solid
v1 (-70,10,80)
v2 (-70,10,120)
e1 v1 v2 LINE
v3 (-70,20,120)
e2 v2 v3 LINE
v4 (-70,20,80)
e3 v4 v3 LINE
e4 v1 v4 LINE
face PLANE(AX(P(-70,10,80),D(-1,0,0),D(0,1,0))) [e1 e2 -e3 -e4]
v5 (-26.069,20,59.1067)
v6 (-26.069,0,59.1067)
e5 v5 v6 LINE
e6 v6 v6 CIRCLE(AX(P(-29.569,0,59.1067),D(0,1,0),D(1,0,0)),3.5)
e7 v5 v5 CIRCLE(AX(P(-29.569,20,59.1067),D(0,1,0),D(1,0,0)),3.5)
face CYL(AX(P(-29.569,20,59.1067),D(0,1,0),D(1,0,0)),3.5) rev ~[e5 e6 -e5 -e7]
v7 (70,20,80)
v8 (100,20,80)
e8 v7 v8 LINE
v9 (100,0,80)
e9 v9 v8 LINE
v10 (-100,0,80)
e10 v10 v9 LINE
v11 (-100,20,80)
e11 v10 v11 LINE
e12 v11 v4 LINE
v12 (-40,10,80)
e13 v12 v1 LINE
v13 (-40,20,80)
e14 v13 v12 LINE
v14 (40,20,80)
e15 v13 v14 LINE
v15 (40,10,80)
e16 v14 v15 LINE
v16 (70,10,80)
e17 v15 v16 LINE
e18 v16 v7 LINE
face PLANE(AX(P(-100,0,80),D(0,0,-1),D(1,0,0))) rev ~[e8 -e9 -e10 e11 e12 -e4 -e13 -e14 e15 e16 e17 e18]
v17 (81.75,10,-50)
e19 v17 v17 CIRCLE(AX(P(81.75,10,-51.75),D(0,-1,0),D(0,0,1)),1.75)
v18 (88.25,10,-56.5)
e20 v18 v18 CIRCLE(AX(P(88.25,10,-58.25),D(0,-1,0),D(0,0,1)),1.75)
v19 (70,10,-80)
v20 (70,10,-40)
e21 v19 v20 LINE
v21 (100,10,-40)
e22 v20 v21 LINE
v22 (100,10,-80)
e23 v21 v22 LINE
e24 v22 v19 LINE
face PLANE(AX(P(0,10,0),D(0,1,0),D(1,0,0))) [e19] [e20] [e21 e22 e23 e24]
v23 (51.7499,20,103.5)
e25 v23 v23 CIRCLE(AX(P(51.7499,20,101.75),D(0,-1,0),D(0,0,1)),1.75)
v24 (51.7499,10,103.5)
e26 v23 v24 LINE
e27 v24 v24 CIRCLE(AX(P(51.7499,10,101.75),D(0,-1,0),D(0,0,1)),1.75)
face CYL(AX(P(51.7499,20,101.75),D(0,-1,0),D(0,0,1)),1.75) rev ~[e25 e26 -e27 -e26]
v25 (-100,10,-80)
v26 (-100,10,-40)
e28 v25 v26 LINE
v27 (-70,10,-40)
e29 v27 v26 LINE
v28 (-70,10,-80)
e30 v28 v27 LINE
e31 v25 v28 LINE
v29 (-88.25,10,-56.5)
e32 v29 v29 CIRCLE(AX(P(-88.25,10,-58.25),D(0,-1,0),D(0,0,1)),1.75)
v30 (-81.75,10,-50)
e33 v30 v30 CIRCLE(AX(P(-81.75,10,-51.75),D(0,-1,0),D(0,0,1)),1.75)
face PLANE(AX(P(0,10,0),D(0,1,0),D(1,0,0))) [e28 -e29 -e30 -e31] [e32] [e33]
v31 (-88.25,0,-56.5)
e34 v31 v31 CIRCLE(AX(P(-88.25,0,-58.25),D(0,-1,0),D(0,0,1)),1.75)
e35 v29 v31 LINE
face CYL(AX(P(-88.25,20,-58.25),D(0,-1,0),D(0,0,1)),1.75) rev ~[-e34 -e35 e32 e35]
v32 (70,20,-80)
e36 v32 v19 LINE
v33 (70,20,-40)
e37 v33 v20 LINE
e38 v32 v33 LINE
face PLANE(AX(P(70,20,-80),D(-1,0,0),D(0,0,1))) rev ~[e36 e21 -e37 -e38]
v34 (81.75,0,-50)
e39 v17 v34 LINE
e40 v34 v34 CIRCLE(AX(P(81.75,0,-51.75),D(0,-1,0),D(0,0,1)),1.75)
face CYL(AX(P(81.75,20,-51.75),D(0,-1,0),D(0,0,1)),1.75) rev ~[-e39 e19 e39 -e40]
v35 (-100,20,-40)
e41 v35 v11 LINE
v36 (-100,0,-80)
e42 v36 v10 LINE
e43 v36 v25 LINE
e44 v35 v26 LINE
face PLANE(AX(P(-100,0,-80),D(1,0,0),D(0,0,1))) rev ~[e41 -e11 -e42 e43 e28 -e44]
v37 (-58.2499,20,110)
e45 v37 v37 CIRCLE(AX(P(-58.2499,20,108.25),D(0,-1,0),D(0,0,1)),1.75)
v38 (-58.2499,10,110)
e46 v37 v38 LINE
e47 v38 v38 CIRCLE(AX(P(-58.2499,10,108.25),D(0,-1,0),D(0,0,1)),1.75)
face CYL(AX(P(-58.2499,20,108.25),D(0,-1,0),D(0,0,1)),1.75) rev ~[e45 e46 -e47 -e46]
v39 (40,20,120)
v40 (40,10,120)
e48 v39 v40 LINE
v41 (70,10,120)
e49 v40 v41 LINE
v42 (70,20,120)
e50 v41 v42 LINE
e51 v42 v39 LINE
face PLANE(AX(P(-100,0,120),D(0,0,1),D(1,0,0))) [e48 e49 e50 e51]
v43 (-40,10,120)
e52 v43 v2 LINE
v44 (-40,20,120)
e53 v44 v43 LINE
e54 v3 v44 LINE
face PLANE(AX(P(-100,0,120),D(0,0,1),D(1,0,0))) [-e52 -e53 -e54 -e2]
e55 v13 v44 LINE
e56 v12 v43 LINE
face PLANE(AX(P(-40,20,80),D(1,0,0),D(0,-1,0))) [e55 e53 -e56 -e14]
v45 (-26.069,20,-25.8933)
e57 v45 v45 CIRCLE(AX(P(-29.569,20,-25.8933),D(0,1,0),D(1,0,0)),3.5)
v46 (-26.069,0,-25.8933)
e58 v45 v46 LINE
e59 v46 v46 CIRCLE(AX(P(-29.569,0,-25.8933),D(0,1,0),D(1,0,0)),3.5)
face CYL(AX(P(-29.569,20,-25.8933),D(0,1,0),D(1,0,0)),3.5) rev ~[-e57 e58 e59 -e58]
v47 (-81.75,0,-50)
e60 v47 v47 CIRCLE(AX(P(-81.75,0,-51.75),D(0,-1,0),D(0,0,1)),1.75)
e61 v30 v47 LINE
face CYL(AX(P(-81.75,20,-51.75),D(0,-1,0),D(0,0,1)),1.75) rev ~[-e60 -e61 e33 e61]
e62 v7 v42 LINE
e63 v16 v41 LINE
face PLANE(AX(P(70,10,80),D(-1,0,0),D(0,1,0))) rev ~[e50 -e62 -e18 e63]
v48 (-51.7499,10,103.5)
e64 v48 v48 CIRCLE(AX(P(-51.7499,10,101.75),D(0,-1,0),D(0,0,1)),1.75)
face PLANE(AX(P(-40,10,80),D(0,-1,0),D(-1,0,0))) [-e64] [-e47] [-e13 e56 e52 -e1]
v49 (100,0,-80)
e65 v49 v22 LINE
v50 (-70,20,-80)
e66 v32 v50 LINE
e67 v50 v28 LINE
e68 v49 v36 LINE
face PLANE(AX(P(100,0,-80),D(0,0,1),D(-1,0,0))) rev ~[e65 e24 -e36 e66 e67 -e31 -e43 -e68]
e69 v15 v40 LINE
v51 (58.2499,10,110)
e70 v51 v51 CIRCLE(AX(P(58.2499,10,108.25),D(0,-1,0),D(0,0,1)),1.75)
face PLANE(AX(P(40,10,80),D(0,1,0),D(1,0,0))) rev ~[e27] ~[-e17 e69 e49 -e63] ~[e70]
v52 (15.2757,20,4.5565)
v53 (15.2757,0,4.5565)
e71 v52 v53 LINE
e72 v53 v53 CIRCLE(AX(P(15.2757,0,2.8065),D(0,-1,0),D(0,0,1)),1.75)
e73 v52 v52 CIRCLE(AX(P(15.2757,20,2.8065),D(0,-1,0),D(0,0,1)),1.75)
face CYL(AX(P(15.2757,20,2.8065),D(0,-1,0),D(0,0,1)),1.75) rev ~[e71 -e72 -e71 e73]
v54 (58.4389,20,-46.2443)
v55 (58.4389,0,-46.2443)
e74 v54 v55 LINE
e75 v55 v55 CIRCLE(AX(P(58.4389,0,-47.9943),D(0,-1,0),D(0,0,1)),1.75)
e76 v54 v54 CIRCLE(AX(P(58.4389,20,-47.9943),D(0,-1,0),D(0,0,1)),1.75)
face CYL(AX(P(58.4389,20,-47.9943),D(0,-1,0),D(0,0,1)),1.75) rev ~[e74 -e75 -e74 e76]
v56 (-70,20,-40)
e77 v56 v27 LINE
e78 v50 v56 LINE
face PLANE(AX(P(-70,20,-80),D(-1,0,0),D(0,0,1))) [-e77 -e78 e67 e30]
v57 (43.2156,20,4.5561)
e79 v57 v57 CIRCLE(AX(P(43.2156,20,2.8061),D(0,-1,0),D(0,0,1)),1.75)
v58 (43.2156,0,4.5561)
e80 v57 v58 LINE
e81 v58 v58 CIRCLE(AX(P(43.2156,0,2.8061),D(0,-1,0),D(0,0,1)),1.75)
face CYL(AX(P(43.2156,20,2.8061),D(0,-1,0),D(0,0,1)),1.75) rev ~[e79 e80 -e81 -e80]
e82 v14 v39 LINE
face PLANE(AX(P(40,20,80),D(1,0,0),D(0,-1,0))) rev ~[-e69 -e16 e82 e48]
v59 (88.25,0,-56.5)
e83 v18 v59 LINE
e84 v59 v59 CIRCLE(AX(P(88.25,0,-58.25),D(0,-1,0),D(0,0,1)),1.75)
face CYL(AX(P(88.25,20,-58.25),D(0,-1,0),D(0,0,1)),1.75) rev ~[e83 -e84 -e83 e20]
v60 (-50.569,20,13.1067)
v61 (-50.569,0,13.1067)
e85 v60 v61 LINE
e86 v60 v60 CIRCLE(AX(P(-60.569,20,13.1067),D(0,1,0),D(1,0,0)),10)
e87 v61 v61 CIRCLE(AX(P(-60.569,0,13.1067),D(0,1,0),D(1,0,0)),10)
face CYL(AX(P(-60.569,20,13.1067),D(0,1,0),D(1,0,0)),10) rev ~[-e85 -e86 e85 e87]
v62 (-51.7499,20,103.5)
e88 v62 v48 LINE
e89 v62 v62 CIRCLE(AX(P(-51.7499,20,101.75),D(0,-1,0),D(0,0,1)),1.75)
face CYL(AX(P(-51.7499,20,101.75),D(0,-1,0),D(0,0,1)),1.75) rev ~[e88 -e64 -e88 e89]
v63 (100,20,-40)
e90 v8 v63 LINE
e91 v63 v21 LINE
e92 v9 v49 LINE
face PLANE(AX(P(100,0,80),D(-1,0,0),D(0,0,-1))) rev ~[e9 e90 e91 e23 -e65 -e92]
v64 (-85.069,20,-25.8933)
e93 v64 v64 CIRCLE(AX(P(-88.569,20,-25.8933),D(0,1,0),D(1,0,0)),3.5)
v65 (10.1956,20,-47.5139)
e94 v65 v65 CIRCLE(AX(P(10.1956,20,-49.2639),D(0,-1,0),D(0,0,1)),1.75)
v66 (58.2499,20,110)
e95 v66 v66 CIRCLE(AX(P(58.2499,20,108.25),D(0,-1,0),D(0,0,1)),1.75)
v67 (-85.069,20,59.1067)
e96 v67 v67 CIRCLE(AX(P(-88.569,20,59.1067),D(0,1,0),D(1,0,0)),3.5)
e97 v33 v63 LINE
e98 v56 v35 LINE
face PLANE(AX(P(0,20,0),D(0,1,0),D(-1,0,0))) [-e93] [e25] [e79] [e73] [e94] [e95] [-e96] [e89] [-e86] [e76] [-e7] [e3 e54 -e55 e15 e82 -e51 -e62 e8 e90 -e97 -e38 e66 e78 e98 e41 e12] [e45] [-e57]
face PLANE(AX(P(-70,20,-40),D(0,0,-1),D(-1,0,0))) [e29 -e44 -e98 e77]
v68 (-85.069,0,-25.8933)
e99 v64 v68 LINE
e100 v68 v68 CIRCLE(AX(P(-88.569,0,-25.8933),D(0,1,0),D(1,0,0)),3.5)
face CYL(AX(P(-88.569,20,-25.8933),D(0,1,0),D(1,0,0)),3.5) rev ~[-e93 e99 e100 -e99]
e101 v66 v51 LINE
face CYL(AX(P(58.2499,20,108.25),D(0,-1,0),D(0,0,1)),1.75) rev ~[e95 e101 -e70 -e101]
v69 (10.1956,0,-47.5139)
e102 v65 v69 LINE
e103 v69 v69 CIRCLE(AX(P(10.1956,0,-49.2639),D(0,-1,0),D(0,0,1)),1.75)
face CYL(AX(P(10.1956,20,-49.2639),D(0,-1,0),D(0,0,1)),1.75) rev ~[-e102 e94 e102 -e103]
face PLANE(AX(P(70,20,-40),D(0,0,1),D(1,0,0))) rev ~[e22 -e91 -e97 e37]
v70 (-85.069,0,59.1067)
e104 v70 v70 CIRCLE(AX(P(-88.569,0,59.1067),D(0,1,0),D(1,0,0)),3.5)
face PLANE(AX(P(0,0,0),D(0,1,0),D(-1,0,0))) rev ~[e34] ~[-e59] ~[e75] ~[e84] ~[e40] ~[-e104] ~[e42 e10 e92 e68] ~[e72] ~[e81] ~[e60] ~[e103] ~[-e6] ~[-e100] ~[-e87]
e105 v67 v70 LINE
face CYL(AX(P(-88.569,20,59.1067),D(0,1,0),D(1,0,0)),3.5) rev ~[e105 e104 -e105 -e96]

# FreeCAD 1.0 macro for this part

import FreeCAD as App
import Part
import Sketcher

V = App.Vector
Q = App.Units.Quantity

doc = App.newDocument("Part")
body = doc.addObject("PartDesign::Body", "Body")

sketch1 = doc.addObject("Sketcher::SketchObject", "Sketch")
body.addObject(sketch1)
sketch1.AttachmentSupport = (doc.XZ_Plane, [""])
sketch1.MapMode = "FlatFace"
sketch1.addGeometry(Part.LineSegment(V(-100, -80, 0), V(-100, 80, 0)), False)
sketch1.addGeometry(Part.LineSegment(V(-100, 80, 0), V(100, 80, 0)), False)
sketch1.addGeometry(Part.LineSegment(V(100, 80, 0), V(100, -80, 0)), False)
sketch1.addGeometry(Part.LineSegment(V(100, -80, 0), V(-100, -80, 0)), False)
sketch1.addConstraint(Sketcher.Constraint("Coincident", 0, 2, 1, 1))
sketch1.addConstraint(Sketcher.Constraint("Coincident", 1, 2, 2, 1))
sketch1.addConstraint(Sketcher.Constraint("Coincident", 2, 2, 3, 1))
sketch1.addConstraint(Sketcher.Constraint("Coincident", 3, 2, 0, 1))
sketch1.addConstraint(Sketcher.Constraint("Vertical", 0))
sketch1.addConstraint(Sketcher.Constraint("Horizontal", 1))
sketch1.addConstraint(Sketcher.Constraint("Vertical", 2))
sketch1.addConstraint(Sketcher.Constraint("Horizontal", 3))
sketch1.addConstraint(Sketcher.Constraint("Symmetric", 0, 2, 2, 2, -1, 1))
sketch1.addConstraint(Sketcher.Constraint("DistanceX", 1, 1, 1, 2, Q("200 mm")))
sketch1.addConstraint(Sketcher.Constraint("DistanceY", 0, 1, 0, 2, Q("160 mm")))
pad1 = doc.addObject("PartDesign::Pad", "Pad")
body.addObject(pad1)
pad1.Profile = sketch1
pad1.Length = 20
pad1.Reversed = True

sketch2 = doc.addObject("Sketcher::SketchObject", "Sketch001")
body.addObject(sketch2)
sketch2.AttachmentSupport = (doc.XZ_Plane, [""])
sketch2.MapMode = "FlatFace"
sketch2.AttachmentOffset = App.Placement(V(0, 0, -20), App.Rotation())
sketch2.addGeometry(Part.LineSegment(V(-70, -80, 0), V(-100, -80, 0)), False)
sketch2.addGeometry(Part.LineSegment(V(-100, -80, 0), V(-100, -40, 0)), False)
sketch2.addGeometry(Part.LineSegment(V(-100, -40, 0), V(-70, -40, 0)), False)
sketch2.addGeometry(Part.LineSegment(V(-70, -40, 0), V(-70, -80, 0)), False)
sketch2.addGeometry(Part.LineSegment(V(100, -80, 0), V(70, -80, 0)), False)
sketch2.addGeometry(Part.LineSegment(V(70, -80, 0), V(70, -40, 0)), False)
sketch2.addGeometry(Part.LineSegment(V(70, -40, 0), V(100, -40, 0)), False)
sketch2.addGeometry(Part.LineSegment(V(100, -40, 0), V(100, -80, 0)), False)
sketch2.addConstraint(Sketcher.Constraint("Coincident", 0, 2, 1, 1))
sketch2.addConstraint(Sketcher.Constraint("Coincident", 1, 2, 2, 1))
sketch2.addConstraint(Sketcher.Constraint("Coincident", 2, 2, 3, 1))
sketch2.addConstraint(Sketcher.Constraint("Coincident", 3, 2, 0, 1))
sketch2.addConstraint(Sketcher.Constraint("Coincident", 4, 2, 5, 1))
sketch2.addConstraint(Sketcher.Constraint("Coincident", 5, 2, 6, 1))
sketch2.addConstraint(Sketcher.Constraint("Coincident", 6, 2, 7, 1))
sketch2.addConstraint(Sketcher.Constraint("Coincident", 7, 2, 4, 1))
sketch2.addConstraint(Sketcher.Constraint("Horizontal", 0))
sketch2.addConstraint(Sketcher.Constraint("Vertical", 1))
sketch2.addConstraint(Sketcher.Constraint("Horizontal", 2))
sketch2.addConstraint(Sketcher.Constraint("Vertical", 3))
sketch2.addConstraint(Sketcher.Constraint("Horizontal", 4))
sketch2.addConstraint(Sketcher.Constraint("Vertical", 5))
sketch2.addConstraint(Sketcher.Constraint("Horizontal", 6))
sketch2.addConstraint(Sketcher.Constraint("Vertical", 7))
sketch2.addConstraint(Sketcher.Constraint("Symmetric", 3, 2, 4, 2, -2))
sketch2.addConstraint(Sketcher.Constraint("Symmetric", 1, 2, 6, 2, -2))
sketch2.addConstraint(Sketcher.Constraint("DistanceX", 0, 2, 0, 1, Q("30 mm")))
sketch2.addConstraint(Sketcher.Constraint("DistanceY", 1, 1, 1, 2, Q("40 mm")))
sketch2.addConstraint(Sketcher.Constraint("DistanceY", 1, 2, -1, 1, Q("40 mm")))
sketch2.addConstraint(Sketcher.Constraint("DistanceX", 0, 2, -1, 1, Q("100 mm")))
pocket1 = doc.addObject("PartDesign::Pocket", "Pocket")
body.addObject(pocket1)
pocket1.Profile = sketch2
pocket1.Length = 10
pocket1.Reversed = True

sketch3 = doc.addObject("Sketcher::SketchObject", "Sketch002")
body.addObject(sketch3)
sketch3.AttachmentSupport = (doc.XZ_Plane, [""])
sketch3.MapMode = "FlatFace"
sketch3.AttachmentOffset = App.Placement(V(0, 0, -20), App.Rotation())
sketch3.addGeometry(Part.Circle(V(-81.8, -51.8, 0), V(0, 0, 1), 1.8), False)
sketch3.addGeometry(Part.Circle(V(-88.2, -58.2, 0), V(0, 0, 1), 1.8), False)
sketch3.addGeometry(Part.Circle(V(81.8, -51.8, 0), V(0, 0, 1), 1.8), False)
sketch3.addGeometry(Part.Circle(V(88.2, -58.2, 0), V(0, 0, 1), 1.8), False)
sketch3.addConstraint(Sketcher.Constraint("Equal", 0, 1))
sketch3.addConstraint(Sketcher.Constraint("Equal", 1, 2))
sketch3.addConstraint(Sketcher.Constraint("Equal", 2, 3))
sketch3.addConstraint(Sketcher.Constraint("Symmetric", 0, 3, 2, 3, -2))
sketch3.addConstraint(Sketcher.Constraint("Symmetric", 1, 3, 3, 3, -2))
sketch3.addConstraint(Sketcher.Constraint("Diameter", 0, Q("3.5 mm")))
sketch3.addConstraint(Sketcher.Constraint("DistanceX", 1, 3, 2, 3, Q("170 mm")))
sketch3.addConstraint(Sketcher.Constraint("DistanceX", 1, 3, 0, 3, Q("6.5 mm")))
sketch3.addConstraint(Sketcher.Constraint("DistanceY", 1, 3, 0, 3, Q("6.5 mm")))
sketch3.addConstraint(Sketcher.Constraint("DistanceY", 0, 3, -1, 1, Q("51.75 mm")))
doc.recompute()
hole = doc.addObject("PartDesign::Hole", "Hole")
body.addObject(hole)
hole.Profile = sketch3
hole.ThreadType = "None"
hole.Diameter = 3.5
hole.DepthType = "ThroughAll"
hole.Reversed = True

sketch4 = doc.addObject("Sketcher::SketchObject", "Sketch003")
body.addObject(sketch4)
sketch4.AttachmentSupport = (doc.XY_Plane, [""])
sketch4.MapMode = "FlatFace"
sketch4.AttachmentOffset = App.Placement(V(0, 0, 80), App.Rotation())
sketch4.addGeometry(Part.LineSegment(V(-40, 20, 0), V(-70, 20, 0)), False)
sketch4.addGeometry(Part.LineSegment(V(-70, 20, 0), V(-70, 10, 0)), False)
sketch4.addGeometry(Part.LineSegment(V(-70, 10, 0), V(-40, 10, 0)), False)
sketch4.addGeometry(Part.LineSegment(V(-40, 10, 0), V(-40, 20, 0)), False)
sketch4.addGeometry(Part.LineSegment(V(70, 10, 0), V(70, 20, 0)), False)
sketch4.addGeometry(Part.LineSegment(V(70, 20, 0), V(40, 20, 0)), False)
sketch4.addGeometry(Part.LineSegment(V(40, 20, 0), V(40, 10, 0)), False)
sketch4.addGeometry(Part.LineSegment(V(40, 10, 0), V(70, 10, 0)), False)
sketch4.addConstraint(Sketcher.Constraint("Coincident", 0, 2, 1, 1))
sketch4.addConstraint(Sketcher.Constraint("Coincident", 1, 2, 2, 1))
sketch4.addConstraint(Sketcher.Constraint("Coincident", 2, 2, 3, 1))
sketch4.addConstraint(Sketcher.Constraint("Coincident", 3, 2, 0, 1))
sketch4.addConstraint(Sketcher.Constraint("Coincident", 4, 2, 5, 1))
sketch4.addConstraint(Sketcher.Constraint("Coincident", 5, 2, 6, 1))
sketch4.addConstraint(Sketcher.Constraint("Coincident", 6, 2, 7, 1))
sketch4.addConstraint(Sketcher.Constraint("Coincident", 7, 2, 4, 1))
sketch4.addConstraint(Sketcher.Constraint("Horizontal", 0))
sketch4.addConstraint(Sketcher.Constraint("Vertical", 1))
sketch4.addConstraint(Sketcher.Constraint("Horizontal", 2))
sketch4.addConstraint(Sketcher.Constraint("Vertical", 3))
sketch4.addConstraint(Sketcher.Constraint("Vertical", 4))
sketch4.addConstraint(Sketcher.Constraint("Horizontal", 5))
sketch4.addConstraint(Sketcher.Constraint("Vertical", 6))
sketch4.addConstraint(Sketcher.Constraint("Horizontal", 7))
sketch4.addConstraint(Sketcher.Constraint("Symmetric", 0, 2, 4, 2, -2))
sketch4.addConstraint(Sketcher.Constraint("Symmetric", 2, 2, 6, 2, -2))
sketch4.addConstraint(Sketcher.Constraint("DistanceX", 0, 2, 0, 1, Q("30 mm")))
sketch4.addConstraint(Sketcher.Constraint("DistanceY", 1, 2, 1, 1, Q("10 mm")))
sketch4.addConstraint(Sketcher.Constraint("DistanceY", -1, 1, 1, 2, Q("10 mm")))
sketch4.addConstraint(Sketcher.Constraint("DistanceX", 0, 2, -1, 1, Q("70 mm")))
pad2 = doc.addObject("PartDesign::Pad", "Pad001")
body.addObject(pad2)
pad2.Profile = sketch4
pad2.Length = 40

sketch5 = doc.addObject("Sketcher::SketchObject", "Sketch004")
body.addObject(sketch5)
sketch5.AttachmentSupport = (doc.XZ_Plane, [""])
sketch5.MapMode = "FlatFace"
sketch5.AttachmentOffset = App.Placement(V(0, 0, -20), App.Rotation())
sketch5.addGeometry(Part.Circle(V(-58.2, 108.2, 0), V(0, 0, 1), 1.8), False)
sketch5.addGeometry(Part.Circle(V(-51.7, 101.8, 0), V(0, 0, 1), 1.8), False)
sketch5.addGeometry(Part.Circle(V(51.7, 101.8, 0), V(0, 0, 1), 1.8), False)
sketch5.addGeometry(Part.Circle(V(58.2, 108.2, 0), V(0, 0, 1), 1.8), False)
sketch5.addConstraint(Sketcher.Constraint("Equal", 0, 1))
sketch5.addConstraint(Sketcher.Constraint("Equal", 1, 2))
sketch5.addConstraint(Sketcher.Constraint("Equal", 2, 3))
sketch5.addConstraint(Sketcher.Constraint("Symmetric", 1, 3, 2, 3, -2))
sketch5.addConstraint(Sketcher.Constraint("Symmetric", 0, 3, 3, 3, -2))
sketch5.addConstraint(Sketcher.Constraint("Diameter", 0, Q("3.5 mm")))
sketch5.addConstraint(Sketcher.Constraint("DistanceX", 0, 3, 1, 3, Q("6.5 mm")))
sketch5.addConstraint(Sketcher.Constraint("DistanceY", 1, 3, 0, 3, Q("6.5 mm")))
sketch5.addConstraint(Sketcher.Constraint("DistanceX", 0, 3, -1, 1, Q("58.25 mm")))
sketch5.addConstraint(Sketcher.Constraint("DistanceY", -1, 1, 0, 3, Q("108.25 mm")))
doc.recompute()
hole2 = doc.addObject("PartDesign::Hole", "Hole001")
body.addObject(hole2)
hole2.Profile = sketch5
hole2.ThreadType = "None"
hole2.Diameter = 3.5
hole2.DepthType = "ThroughAll"
hole2.Reversed = True

sketch6 = doc.addObject("Sketcher::SketchObject", "Sketch005")
body.addObject(sketch6)
sketch6.AttachmentSupport = (doc.XZ_Plane, [""])
sketch6.MapMode = "FlatFace"
sketch6.AttachmentOffset = App.Placement(V(0, 0, -20), App.Rotation())
sketch6.addGeometry(Part.Circle(V(10.2, -49.3, 0), V(0, 0, 1), 1.8), False)
sketch6.addGeometry(Part.Circle(V(58.4, -48, 0), V(0, 0, 1), 1.8), False)
sketch6.addGeometry(Part.Circle(V(15.3, 2.8, 0), V(0, 0, 1), 1.8), False)
sketch6.addGeometry(Part.Circle(V(43.2, 2.8, 0), V(0, 0, 1), 1.8), False)
sketch6.addConstraint(Sketcher.Constraint("Equal", 0, 1))
sketch6.addConstraint(Sketcher.Constraint("Equal", 1, 2))
sketch6.addConstraint(Sketcher.Constraint("Equal", 2, 3))
sketch6.addConstraint(Sketcher.Constraint("Diameter", 0, Q("3.5 mm")))
sketch6.addConstraint(Sketcher.Constraint("DistanceX", 0, 3, 2, 3, Q("5.08 mm")))
sketch6.addConstraint(Sketcher.Constraint("DistanceX", 2, 3, 3, 3, Q("27.94 mm")))
sketch6.addConstraint(Sketcher.Constraint("DistanceY", 0, 3, 3, 3, Q("52.07 mm")))
sketch6.addConstraint(Sketcher.Constraint("DistanceY", 0, 3, -1, 1, Q("49.264 mm")))
sketch6.addConstraint(Sketcher.Constraint("DistanceX", -1, 1, 1, 3, Q("58.439 mm")))
sketch6.addConstraint(Sketcher.Constraint("DistanceX", -1, 1, 0, 3, Q("10.1956 mm")))
sketch6.addConstraint(Sketcher.Constraint("DistanceY", 1, 3, -1, 1, Q("47.9943 mm")))
sketch6.addConstraint(Sketcher.Constraint("DistanceY", -1, 1, 2, 3, Q("2.8065 mm")))
doc.recompute()
hole3 = doc.addObject("PartDesign::Hole", "Hole002")
body.addObject(hole3)
hole3.Profile = sketch6
hole3.ThreadType = "None"
hole3.Diameter = 3.5
hole3.DepthType = "ThroughAll"
hole3.Reversed = True

sketch7 = doc.addObject("Sketcher::SketchObject", "Sketch006")
body.addObject(sketch7)
sketch7.AttachmentSupport = (doc.XZ_Plane, [""])
sketch7.MapMode = "FlatFace"
sketch7.AttachmentOffset = App.Placement(V(0, 0, -20), App.Rotation())
sketch7.addGeometry(Part.Circle(V(-60.6, 13.1, 0), V(0, 0, 1), 10), False)
sketch7.addGeometry(Part.Circle(V(-29.6, 59.1, 0), V(0, 0, 1), 3.5), False)
sketch7.addGeometry(Part.Circle(V(-29.6, -25.9, 0), V(0, 0, 1), 3.5), False)
sketch7.addGeometry(Part.Circle(V(-88.6, -25.9, 0), V(0, 0, 1), 3.5), False)
sketch7.addGeometry(Part.Circle(V(-88.6, 59.1, 0), V(0, 0, 1), 3.5), False)
sketch7.addConstraint(Sketcher.Constraint("Equal", 1, 2))
sketch7.addConstraint(Sketcher.Constraint("Equal", 2, 3))
sketch7.addConstraint(Sketcher.Constraint("Equal", 3, 4))
sketch7.addConstraint(Sketcher.Constraint("Horizontal", 2, 3, 3, 3))
sketch7.addConstraint(Sketcher.Constraint("Horizontal", 1, 3, 4, 3))
sketch7.addConstraint(Sketcher.Constraint("Vertical", 1, 3, 2, 3))
sketch7.addConstraint(Sketcher.Constraint("Vertical", 3, 3, 4, 3))
sketch7.addConstraint(Sketcher.Constraint("Diameter", 1, Q("7 mm")))
sketch7.addConstraint(Sketcher.Constraint("Diameter", 0, Q("20 mm")))
sketch7.addConstraint(Sketcher.Constraint("DistanceY", 0, 3, 1, 3, Q("46 mm")))
sketch7.addConstraint(Sketcher.Constraint("DistanceY", 2, 3, 0, 3, Q("39 mm")))
sketch7.addConstraint(Sketcher.Constraint("DistanceX", 3, 3, 2, 3, Q("59 mm")))
sketch7.addConstraint(Sketcher.Constraint("DistanceX", 0, 3, 1, 3, Q("31 mm")))
sketch7.addConstraint(Sketcher.Constraint("DistanceX", 0, 3, -1, 1, Q("60.569 mm")))
sketch7.addConstraint(Sketcher.Constraint("DistanceY", -1, 1, 0, 3, Q("13.1067 mm")))
pocket2 = doc.addObject("PartDesign::Pocket", "Pocket001")
body.addObject(pocket2)
pocket2.Profile = sketch7
pocket2.Length = 20
pocket2.Reversed = True

doc.recompute()
